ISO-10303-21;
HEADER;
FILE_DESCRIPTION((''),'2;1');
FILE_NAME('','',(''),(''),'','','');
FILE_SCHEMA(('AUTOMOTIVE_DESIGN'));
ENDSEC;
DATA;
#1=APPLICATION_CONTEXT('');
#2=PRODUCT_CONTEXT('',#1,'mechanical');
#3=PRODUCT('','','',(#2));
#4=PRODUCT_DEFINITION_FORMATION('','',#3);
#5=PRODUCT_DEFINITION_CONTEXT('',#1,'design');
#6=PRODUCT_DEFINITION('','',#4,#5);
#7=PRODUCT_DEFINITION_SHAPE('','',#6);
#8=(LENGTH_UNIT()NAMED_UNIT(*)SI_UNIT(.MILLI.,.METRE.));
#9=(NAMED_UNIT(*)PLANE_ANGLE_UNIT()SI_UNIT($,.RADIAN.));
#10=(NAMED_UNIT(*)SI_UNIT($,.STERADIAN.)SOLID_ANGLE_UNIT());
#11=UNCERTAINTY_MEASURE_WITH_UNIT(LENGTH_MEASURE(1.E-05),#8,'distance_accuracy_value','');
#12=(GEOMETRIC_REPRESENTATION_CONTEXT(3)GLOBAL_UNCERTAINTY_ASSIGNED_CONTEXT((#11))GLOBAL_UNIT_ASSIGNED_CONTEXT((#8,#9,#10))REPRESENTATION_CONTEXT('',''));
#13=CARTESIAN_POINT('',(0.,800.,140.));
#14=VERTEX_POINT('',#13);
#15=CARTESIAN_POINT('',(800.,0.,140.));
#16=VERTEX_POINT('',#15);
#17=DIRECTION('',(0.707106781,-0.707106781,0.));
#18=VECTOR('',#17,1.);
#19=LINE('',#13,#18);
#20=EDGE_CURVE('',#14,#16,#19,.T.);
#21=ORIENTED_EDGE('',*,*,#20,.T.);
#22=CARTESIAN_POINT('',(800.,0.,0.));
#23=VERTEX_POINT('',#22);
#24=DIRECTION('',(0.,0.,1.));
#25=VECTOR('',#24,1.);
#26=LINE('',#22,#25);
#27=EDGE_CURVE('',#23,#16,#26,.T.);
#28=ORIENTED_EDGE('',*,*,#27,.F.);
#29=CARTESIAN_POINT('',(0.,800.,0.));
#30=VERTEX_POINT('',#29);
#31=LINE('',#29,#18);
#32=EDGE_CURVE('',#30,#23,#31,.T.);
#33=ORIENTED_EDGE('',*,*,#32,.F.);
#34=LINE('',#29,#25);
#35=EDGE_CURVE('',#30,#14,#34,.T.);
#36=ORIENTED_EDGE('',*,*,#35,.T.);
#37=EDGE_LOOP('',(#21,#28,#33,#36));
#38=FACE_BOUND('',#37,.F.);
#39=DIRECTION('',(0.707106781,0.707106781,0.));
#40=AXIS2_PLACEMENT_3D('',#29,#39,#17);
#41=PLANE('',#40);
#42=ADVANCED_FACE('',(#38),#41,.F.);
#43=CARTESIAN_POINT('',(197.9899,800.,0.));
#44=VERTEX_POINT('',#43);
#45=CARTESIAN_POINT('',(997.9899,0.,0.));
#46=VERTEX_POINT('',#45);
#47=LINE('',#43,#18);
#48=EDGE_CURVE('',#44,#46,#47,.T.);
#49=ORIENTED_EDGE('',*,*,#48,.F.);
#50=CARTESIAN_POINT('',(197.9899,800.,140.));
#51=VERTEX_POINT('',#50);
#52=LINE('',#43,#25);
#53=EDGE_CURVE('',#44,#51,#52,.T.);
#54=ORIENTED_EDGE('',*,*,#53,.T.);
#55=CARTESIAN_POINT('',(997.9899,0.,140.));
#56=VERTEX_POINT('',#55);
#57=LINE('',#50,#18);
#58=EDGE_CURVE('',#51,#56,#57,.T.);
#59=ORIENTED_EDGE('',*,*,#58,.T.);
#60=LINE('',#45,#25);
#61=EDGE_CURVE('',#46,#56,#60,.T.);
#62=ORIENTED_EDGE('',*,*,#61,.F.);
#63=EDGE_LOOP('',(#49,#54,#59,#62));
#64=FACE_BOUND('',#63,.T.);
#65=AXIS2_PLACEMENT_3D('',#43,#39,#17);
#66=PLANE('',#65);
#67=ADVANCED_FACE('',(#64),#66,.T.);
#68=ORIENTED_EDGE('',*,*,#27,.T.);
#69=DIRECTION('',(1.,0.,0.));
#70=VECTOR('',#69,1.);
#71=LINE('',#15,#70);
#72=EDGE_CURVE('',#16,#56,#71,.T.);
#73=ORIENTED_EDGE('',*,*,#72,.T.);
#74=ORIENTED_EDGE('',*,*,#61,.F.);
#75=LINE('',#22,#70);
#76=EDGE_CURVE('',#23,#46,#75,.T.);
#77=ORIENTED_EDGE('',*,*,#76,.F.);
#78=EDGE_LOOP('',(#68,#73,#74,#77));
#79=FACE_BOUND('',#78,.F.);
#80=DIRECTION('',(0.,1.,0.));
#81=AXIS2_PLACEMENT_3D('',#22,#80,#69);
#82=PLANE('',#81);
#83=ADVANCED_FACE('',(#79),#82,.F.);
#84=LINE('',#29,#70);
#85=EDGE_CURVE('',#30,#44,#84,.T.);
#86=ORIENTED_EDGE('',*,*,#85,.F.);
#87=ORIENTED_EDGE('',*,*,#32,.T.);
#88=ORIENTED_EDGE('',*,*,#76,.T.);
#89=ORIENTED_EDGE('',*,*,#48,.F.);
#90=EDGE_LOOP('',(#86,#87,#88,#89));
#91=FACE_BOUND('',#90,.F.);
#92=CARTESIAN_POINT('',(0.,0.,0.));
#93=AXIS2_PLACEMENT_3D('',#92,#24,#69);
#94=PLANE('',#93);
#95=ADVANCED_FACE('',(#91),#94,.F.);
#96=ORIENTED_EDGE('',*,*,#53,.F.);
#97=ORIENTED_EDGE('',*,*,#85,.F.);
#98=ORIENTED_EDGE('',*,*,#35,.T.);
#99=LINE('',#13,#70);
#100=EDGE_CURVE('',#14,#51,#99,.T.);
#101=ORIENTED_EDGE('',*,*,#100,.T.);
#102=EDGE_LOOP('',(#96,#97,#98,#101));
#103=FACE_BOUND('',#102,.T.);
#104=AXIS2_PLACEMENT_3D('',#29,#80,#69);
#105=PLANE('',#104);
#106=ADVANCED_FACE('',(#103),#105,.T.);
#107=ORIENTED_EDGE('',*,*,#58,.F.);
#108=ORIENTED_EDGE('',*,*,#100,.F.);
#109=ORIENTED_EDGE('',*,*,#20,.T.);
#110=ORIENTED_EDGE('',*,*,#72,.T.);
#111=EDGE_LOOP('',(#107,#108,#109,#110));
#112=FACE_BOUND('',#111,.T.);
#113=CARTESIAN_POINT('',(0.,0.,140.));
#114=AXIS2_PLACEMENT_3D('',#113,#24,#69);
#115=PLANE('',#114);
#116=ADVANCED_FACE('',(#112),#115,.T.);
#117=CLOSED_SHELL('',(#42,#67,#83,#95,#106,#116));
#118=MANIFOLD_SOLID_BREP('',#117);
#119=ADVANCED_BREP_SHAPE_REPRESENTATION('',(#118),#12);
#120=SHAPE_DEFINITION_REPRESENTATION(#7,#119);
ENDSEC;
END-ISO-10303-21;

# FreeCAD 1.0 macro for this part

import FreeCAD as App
import Part
import Sketcher

V = App.Vector
Q = App.Units.Quantity


def add_polygon(sketch, points):
    """Adds a closed chain of lines whose ends are joined by coincident constraints."""
    first, n = sketch.GeometryCount, len(points)
    for a, b in zip(points, points[1:] + points[:1]):
        sketch.addGeometry(Part.LineSegment(App.Vector(*a, 0), App.Vector(*b, 0)), False)
    for i in range(n):
        sketch.addConstraint(Sketcher.Constraint("Coincident", first + i, 2, first + (i + 1) % n, 1))

doc = App.newDocument("Part")
body = doc.addObject("PartDesign::Body", "Body")

sketch1 = body.newObject("Sketcher::SketchObject", "Sketch")
sketch1.AttachmentSupport = (doc.getObject("XY_Plane"), [""])
sketch1.MapMode = "FlatFace"
add_polygon(sketch1, [(198, 800), (0, 800), (800, 0), (998, 0)])
sketch1.addConstraint(Sketcher.Constraint("Horizontal", 0))
sketch1.addConstraint(Sketcher.Constraint("Horizontal", 2))
sketch1.addConstraint(Sketcher.Constraint("PointOnObject", 0, 2, -2))
sketch1.addConstraint(Sketcher.Constraint("PointOnObject", 1, 2, -1))
sketch1.addConstraint(Sketcher.Constraint("Parallel", 1, 3))
sketch1.addConstraint(Sketcher.Constraint("Angle", 1, Q("-45 deg")))
sketch1.addConstraint(Sketcher.Constraint("DistanceY", -1, 1, 0, 2, Q("800 mm")))
sketch1.addConstraint(Sketcher.Constraint("DistanceX", 0, 2, 0, 1, Q("197.99 mm")))
pad1 = body.newObject("PartDesign::Pad", "Pad")
pad1.Profile = sketch1
pad1.Length = 140

doc.recompute()
